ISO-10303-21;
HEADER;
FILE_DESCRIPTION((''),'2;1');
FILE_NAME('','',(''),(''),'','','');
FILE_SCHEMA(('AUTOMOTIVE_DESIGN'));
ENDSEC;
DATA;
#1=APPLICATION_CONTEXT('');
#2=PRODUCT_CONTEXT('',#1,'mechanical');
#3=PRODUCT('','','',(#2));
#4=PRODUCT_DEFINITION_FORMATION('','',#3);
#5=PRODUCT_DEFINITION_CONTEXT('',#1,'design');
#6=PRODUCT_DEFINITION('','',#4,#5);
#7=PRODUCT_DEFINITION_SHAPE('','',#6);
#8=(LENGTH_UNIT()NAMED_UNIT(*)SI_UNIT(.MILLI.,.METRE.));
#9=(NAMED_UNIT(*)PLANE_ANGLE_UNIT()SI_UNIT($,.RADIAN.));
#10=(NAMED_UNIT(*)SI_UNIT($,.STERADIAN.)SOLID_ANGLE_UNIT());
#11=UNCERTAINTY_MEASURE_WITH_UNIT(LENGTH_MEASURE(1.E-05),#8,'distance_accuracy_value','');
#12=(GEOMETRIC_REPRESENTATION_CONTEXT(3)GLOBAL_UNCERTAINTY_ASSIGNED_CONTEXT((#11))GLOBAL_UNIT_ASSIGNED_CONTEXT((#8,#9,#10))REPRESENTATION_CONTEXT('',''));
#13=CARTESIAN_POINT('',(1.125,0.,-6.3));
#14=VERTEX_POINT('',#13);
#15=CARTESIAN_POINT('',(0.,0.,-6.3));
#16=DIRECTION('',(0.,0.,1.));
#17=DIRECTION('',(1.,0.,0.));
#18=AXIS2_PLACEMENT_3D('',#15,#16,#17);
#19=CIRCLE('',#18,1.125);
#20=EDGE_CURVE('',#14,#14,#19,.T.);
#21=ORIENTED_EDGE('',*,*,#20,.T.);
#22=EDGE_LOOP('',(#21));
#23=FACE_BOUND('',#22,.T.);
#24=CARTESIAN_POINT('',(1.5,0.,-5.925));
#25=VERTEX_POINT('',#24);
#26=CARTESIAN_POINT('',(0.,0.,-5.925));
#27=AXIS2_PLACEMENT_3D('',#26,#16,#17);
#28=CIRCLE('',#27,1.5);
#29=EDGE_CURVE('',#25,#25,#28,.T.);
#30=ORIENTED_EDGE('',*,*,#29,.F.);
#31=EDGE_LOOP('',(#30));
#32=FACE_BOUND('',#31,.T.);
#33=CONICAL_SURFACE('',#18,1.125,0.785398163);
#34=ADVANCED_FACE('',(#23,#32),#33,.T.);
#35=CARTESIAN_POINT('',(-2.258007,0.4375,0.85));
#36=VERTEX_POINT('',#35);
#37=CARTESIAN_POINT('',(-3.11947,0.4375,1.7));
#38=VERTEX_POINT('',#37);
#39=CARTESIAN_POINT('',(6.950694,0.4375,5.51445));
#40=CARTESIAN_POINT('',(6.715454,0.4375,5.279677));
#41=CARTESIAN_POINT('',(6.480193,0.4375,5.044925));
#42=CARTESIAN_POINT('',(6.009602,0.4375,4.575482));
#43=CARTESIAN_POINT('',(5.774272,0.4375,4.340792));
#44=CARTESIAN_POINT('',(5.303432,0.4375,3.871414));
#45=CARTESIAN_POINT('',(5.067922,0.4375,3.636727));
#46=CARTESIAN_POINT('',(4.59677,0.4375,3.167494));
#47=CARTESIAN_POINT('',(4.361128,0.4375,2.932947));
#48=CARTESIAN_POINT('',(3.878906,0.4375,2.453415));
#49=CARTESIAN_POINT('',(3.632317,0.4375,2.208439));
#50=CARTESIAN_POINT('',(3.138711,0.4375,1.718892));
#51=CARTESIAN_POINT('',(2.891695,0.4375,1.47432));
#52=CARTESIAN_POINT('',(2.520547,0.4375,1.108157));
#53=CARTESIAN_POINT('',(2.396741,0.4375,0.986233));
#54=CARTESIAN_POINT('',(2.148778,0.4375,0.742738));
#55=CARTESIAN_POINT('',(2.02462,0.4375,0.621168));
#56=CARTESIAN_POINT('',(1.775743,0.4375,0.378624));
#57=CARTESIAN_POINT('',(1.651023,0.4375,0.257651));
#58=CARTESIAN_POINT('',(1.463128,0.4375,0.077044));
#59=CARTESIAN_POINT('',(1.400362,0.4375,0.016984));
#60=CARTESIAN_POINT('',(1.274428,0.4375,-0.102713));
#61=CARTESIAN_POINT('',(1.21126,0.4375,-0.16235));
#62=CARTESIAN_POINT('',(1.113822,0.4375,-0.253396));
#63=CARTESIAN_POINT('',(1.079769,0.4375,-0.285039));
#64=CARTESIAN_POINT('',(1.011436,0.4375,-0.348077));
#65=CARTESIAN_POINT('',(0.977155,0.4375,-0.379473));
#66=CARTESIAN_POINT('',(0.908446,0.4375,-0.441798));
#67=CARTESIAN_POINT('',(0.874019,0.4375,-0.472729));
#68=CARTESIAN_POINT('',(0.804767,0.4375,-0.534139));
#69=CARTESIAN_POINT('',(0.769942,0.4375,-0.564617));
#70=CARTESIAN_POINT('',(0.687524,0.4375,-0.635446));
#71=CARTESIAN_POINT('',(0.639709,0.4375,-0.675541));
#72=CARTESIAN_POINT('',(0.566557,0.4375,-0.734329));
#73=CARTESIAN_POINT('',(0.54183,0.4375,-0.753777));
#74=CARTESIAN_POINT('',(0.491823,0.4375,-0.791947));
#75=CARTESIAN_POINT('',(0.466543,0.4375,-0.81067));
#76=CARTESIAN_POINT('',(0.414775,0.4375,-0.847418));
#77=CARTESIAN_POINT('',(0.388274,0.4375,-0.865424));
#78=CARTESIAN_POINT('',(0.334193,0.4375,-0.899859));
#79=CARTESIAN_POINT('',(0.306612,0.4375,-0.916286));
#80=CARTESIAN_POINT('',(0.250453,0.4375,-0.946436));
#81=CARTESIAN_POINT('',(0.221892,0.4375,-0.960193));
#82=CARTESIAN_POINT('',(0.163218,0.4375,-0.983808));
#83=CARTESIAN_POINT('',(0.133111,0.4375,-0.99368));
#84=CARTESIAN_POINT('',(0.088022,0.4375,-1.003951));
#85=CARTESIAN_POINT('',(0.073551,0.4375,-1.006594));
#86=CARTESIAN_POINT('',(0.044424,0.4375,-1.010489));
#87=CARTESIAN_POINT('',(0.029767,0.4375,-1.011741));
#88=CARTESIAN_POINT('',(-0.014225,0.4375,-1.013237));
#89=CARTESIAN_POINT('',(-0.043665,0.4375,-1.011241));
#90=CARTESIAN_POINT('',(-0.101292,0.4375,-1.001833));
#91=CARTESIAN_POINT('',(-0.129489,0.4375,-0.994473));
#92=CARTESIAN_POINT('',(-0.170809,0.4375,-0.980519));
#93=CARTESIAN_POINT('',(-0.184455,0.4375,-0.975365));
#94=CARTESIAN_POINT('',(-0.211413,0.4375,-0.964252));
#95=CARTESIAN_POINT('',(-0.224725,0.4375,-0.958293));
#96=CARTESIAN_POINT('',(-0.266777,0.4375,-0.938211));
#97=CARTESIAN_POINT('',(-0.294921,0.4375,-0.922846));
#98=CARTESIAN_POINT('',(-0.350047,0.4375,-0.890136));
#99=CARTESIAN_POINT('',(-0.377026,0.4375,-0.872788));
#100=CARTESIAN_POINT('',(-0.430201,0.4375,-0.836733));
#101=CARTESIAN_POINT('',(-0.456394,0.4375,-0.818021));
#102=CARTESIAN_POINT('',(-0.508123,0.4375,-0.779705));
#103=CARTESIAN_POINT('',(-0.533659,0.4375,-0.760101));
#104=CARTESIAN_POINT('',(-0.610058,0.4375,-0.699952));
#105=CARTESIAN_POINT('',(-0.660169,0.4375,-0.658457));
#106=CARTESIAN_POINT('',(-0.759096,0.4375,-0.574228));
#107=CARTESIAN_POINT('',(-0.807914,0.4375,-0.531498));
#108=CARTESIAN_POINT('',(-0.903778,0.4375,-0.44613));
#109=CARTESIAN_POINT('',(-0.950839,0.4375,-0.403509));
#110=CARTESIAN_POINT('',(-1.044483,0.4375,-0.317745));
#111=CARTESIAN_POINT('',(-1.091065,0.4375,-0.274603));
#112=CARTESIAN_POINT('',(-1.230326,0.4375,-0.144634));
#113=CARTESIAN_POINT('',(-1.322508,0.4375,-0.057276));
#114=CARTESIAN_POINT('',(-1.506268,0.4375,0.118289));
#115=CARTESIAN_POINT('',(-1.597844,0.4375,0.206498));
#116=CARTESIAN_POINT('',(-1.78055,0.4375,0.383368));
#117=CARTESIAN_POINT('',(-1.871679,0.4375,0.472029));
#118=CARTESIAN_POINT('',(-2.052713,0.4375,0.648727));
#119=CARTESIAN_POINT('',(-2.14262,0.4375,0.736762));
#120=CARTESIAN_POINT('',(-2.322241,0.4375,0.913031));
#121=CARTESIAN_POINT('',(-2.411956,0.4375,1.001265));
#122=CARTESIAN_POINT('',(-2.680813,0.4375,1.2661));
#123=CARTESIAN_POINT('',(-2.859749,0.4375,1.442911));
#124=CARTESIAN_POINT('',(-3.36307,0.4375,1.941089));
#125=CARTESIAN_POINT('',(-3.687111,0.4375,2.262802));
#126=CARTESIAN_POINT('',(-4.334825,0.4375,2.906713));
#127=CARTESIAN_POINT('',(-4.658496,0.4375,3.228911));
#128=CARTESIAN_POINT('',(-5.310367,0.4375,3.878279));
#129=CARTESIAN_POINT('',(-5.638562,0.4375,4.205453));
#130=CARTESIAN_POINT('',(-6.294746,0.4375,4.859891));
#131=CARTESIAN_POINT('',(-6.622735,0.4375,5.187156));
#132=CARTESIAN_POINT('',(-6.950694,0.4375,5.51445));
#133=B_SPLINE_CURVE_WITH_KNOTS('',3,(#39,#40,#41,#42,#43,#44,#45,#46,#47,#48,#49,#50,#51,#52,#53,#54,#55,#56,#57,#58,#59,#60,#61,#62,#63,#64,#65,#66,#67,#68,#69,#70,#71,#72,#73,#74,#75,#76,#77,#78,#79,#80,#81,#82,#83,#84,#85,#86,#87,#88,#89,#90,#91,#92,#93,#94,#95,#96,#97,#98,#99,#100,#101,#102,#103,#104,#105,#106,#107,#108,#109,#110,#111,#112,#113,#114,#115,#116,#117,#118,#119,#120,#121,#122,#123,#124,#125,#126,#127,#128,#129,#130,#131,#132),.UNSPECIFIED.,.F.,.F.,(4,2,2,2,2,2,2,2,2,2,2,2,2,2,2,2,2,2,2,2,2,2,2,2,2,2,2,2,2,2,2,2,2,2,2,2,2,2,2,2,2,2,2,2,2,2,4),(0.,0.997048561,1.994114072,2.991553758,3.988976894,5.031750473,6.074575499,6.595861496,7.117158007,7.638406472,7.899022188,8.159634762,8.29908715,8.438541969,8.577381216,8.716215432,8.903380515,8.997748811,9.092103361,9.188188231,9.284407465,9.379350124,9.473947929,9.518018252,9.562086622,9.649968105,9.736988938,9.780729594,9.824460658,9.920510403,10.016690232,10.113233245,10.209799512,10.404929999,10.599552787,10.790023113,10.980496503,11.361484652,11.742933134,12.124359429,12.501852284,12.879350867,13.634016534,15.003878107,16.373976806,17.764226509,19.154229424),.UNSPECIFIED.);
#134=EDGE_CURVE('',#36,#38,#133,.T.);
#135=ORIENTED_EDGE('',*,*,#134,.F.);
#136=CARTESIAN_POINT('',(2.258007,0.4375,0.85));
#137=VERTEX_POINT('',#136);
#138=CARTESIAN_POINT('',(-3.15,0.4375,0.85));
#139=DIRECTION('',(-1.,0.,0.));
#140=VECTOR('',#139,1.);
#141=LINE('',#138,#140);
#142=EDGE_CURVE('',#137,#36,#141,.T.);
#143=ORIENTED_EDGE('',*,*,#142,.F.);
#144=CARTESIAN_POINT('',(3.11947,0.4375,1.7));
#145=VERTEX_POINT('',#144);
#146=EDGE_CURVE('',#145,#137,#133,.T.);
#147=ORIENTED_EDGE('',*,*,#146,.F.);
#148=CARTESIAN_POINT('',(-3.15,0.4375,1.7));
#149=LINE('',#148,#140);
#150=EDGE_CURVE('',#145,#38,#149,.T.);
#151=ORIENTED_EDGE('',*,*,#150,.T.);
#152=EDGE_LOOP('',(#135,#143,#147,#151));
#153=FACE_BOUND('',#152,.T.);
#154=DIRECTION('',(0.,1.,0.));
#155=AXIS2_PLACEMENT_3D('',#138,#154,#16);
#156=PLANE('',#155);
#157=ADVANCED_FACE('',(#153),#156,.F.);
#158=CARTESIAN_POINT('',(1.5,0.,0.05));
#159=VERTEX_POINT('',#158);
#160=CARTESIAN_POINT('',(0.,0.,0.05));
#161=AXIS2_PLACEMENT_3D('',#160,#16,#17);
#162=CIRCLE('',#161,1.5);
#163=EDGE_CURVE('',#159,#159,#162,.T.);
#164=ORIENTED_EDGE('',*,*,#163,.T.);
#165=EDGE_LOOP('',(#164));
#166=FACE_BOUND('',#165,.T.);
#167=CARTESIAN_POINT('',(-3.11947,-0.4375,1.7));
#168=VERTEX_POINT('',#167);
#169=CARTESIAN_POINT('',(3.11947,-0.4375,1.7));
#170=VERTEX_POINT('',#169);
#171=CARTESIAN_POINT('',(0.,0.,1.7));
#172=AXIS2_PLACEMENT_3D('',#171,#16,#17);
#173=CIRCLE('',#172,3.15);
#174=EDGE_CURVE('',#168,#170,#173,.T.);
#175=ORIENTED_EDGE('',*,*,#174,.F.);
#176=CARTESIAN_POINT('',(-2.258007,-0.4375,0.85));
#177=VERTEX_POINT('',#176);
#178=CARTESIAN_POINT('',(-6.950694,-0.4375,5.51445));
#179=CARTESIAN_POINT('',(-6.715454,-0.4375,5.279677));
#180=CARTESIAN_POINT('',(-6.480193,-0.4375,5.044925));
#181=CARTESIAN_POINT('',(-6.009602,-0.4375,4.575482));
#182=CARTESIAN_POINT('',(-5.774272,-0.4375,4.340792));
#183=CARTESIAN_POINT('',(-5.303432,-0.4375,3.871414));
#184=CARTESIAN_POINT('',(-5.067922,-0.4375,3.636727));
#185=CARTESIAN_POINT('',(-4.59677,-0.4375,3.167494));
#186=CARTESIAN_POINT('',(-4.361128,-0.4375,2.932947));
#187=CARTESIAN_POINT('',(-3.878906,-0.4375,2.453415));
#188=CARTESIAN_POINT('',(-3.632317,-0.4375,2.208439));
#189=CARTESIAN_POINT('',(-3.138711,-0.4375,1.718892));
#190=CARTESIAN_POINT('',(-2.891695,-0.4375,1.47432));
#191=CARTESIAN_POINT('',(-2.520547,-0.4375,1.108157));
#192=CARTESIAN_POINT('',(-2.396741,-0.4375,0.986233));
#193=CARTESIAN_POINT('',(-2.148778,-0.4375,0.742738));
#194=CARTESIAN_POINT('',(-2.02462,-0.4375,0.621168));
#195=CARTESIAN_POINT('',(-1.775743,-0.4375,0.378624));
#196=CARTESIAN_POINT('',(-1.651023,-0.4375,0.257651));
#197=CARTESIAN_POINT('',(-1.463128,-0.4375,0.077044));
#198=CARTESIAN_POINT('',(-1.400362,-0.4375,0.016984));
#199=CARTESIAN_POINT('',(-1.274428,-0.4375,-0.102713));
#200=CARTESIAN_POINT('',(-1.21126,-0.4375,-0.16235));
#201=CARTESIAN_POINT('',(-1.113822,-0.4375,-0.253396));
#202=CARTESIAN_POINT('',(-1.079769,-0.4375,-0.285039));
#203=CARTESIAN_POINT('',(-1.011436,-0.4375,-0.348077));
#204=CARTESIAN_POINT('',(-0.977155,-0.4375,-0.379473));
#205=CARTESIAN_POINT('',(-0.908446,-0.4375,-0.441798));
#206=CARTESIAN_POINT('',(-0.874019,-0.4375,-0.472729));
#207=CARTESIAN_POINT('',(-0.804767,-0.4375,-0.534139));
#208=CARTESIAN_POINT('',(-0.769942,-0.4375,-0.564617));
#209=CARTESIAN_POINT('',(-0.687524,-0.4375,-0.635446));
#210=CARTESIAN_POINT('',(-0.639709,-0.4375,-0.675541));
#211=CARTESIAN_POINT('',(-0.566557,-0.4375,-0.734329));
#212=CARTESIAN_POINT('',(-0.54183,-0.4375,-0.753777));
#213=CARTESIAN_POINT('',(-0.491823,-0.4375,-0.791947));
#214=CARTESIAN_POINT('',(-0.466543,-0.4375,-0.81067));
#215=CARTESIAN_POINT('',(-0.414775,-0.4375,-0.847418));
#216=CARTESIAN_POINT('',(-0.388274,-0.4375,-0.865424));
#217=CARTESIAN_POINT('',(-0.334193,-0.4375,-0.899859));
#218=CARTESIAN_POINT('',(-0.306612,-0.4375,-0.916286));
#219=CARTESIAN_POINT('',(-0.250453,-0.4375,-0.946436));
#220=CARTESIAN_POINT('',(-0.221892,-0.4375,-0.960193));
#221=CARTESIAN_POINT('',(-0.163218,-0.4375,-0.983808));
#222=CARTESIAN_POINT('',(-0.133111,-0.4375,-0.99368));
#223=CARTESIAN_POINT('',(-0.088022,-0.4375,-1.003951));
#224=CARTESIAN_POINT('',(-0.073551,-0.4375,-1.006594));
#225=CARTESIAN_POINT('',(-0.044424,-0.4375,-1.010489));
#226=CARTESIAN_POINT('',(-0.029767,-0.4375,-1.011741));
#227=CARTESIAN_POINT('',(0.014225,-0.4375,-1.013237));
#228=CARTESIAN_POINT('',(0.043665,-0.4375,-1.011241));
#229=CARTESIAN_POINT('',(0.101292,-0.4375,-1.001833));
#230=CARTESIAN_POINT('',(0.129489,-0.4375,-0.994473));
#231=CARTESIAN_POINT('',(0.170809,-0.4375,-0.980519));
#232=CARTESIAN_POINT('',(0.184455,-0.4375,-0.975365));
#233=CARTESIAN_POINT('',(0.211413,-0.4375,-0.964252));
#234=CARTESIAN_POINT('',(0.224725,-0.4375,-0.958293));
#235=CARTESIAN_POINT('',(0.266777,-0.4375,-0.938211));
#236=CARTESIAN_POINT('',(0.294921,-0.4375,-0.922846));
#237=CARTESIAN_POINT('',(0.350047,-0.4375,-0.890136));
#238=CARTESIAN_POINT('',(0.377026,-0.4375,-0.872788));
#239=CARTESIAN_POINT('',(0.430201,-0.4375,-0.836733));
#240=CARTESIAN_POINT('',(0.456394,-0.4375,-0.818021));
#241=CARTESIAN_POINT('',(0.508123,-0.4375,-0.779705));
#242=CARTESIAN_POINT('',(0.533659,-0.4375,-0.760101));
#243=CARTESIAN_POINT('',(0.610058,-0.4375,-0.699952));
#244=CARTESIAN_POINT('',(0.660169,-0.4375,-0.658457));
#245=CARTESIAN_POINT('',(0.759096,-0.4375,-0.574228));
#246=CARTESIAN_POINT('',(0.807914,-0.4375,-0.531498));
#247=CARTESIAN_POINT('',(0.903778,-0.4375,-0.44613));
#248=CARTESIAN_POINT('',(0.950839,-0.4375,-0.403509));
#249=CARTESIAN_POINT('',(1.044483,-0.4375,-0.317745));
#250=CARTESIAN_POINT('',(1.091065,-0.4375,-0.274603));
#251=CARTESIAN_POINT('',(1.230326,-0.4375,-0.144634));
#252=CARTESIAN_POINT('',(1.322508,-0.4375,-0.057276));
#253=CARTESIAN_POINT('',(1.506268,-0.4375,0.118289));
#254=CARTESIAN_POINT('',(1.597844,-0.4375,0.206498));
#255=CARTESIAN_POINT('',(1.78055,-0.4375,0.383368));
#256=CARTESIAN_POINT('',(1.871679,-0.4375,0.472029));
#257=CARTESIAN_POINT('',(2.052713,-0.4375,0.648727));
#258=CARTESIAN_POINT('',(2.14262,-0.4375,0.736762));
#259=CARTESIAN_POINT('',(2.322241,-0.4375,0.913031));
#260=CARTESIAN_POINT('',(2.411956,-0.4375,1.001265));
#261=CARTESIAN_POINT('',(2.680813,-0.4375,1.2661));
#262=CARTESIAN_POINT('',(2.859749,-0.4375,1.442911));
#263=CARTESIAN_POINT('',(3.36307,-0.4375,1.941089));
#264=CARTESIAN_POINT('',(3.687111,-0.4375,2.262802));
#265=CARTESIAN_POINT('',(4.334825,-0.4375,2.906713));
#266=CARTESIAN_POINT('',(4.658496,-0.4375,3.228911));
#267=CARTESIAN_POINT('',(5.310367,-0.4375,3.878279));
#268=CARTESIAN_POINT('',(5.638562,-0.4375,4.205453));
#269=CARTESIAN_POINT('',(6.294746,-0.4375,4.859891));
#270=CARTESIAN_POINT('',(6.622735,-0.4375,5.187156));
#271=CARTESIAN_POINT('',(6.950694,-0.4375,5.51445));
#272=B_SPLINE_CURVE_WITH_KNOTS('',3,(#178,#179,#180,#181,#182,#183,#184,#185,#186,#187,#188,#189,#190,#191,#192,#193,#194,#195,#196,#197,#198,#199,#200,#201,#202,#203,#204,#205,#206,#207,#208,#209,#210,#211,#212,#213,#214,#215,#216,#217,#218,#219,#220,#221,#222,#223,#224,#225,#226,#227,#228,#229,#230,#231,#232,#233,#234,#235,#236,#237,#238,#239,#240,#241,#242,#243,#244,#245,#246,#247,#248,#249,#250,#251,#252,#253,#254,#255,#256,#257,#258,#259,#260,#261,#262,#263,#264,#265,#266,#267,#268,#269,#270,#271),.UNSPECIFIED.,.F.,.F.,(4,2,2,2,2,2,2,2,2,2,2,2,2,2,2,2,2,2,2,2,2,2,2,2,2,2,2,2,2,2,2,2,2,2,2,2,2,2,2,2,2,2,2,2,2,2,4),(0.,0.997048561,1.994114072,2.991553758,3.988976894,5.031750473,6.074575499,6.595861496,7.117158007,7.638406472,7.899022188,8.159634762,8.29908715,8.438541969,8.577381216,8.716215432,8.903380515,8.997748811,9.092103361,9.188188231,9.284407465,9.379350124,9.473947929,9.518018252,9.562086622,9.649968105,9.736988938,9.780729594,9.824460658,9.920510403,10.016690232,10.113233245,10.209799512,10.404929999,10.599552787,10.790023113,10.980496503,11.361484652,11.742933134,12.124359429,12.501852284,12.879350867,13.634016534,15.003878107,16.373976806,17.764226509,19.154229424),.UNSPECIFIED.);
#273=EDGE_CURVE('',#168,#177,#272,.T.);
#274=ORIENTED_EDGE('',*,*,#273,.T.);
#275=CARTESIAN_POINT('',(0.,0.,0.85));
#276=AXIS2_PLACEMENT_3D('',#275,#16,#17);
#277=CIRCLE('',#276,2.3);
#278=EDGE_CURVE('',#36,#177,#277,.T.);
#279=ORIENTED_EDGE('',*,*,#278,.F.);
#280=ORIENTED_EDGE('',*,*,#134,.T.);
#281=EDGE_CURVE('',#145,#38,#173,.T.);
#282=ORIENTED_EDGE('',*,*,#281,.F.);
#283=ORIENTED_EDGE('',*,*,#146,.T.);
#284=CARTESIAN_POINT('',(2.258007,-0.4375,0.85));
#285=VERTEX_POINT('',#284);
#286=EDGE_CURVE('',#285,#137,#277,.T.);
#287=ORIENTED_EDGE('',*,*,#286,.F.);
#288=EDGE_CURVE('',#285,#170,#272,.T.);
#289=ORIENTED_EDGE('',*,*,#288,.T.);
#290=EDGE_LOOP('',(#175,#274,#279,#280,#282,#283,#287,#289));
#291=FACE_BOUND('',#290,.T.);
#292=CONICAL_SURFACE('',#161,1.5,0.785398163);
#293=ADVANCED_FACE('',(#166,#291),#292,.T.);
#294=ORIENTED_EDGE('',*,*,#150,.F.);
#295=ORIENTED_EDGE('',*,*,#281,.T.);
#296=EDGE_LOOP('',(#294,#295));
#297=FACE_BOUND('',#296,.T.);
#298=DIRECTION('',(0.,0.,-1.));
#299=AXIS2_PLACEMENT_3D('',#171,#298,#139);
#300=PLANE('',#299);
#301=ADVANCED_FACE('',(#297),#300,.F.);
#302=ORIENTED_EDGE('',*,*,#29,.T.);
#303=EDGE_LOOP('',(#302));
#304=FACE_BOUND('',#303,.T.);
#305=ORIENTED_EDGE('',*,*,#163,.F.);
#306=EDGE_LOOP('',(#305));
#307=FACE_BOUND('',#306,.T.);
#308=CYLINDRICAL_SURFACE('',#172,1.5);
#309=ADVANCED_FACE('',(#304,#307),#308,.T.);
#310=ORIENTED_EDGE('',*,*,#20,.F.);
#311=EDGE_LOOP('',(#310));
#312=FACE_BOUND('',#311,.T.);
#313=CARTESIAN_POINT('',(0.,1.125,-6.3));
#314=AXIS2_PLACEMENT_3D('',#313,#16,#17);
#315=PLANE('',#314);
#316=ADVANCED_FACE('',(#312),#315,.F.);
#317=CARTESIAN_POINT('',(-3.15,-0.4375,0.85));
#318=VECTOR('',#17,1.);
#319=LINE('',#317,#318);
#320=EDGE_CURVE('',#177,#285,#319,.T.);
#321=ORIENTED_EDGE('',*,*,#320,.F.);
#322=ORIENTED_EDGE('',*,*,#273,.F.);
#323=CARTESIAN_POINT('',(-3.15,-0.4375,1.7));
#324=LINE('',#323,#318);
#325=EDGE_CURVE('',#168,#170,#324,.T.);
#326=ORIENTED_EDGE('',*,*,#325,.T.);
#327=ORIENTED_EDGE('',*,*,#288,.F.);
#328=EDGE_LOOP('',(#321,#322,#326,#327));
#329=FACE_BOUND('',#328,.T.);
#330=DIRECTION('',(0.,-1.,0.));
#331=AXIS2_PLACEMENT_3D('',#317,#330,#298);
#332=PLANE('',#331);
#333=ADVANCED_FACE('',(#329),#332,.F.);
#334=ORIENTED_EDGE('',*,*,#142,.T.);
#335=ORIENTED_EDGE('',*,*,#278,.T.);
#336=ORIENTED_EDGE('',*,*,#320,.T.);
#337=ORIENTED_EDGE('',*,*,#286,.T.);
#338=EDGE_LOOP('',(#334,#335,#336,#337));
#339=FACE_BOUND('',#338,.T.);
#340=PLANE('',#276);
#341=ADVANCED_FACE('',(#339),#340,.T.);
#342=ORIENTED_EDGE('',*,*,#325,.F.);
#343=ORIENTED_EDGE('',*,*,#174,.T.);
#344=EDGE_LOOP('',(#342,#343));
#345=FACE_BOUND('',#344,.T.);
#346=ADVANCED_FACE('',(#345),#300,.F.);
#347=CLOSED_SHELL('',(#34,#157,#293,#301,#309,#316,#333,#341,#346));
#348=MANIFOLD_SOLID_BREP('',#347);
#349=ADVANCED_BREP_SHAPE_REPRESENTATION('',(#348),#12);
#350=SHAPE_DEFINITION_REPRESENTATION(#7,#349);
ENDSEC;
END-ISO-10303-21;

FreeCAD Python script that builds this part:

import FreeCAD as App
import Part
import Sketcher
Q = App.Units.Quantity


def add_polygon(sketch, points):
    """Adds a closed chain of lines whose ends are joined by coincident constraints."""
    first, n = sketch.GeometryCount, len(points)
    for a, b in zip(points, points[1:] + points[:1]):
        sketch.addGeometry(Part.LineSegment(App.Vector(*a, 0), App.Vector(*b, 0)), False)
    for i in range(n):
        sketch.addConstraint(Sketcher.Constraint("Coincident", first + i, 2, first + (i + 1) % n, 1))

doc = App.newDocument("Part")
params = doc.addObject("Spreadsheet::Sheet", "Params")
for row, (alias, value) in enumerate([
    ("sketch1_height", "8 mm"),
    ("sketch1_width", "3.15 mm"),
    ("revolution_angle", "360 deg"),
    ("sketch2_width", "6.3 mm"),
    ("pocket1_length", "0.85 mm"),
], start=1):
    params.set(f"A{row}", alias)
    params.set(f"B{row}", "=" + value)
    params.setAlias(f"B{row}", alias)

body = doc.addObject("PartDesign::Body", "Body")

# Sketch on YZ plane
sketch1 = body.newObject("Sketcher::SketchObject", "Sketch")
sketch1.AttachmentSupport = (doc.getObject("YZ_Plane"), [""])
sketch1.MapMode = "FlatFace"
add_polygon(sketch1, [(1.5, 0.1), (3.1, 1.7), (0, 1.7), (0, -6.3), (1.1, -6.3), (1.5, -5.9)])  # lines 0-5
sketch1.addConstraint([
    Sketcher.Constraint("Horizontal", 1),
    Sketcher.Constraint("Vertical", 2),
    Sketcher.Constraint("Horizontal", 3),
    Sketcher.Constraint("Vertical", 5),
    Sketcher.Constraint("PointOnObject", 1, 2, -2),
    Sketcher.Constraint("Parallel", 0, 4),
    Sketcher.Constraint("DistanceY", 2, 2, 2, 1, Q("8 mm")),
    Sketcher.Constraint("Angle", 0, Q("45 deg")),
    Sketcher.Constraint("DistanceX", 1, 2, 1, 1, Q("3.15 mm")),
    Sketcher.Constraint("DistanceY", -1, 1, 0, 2, Q("1.7 mm")),
    Sketcher.Constraint("DistanceX", -1, 1, 4, 2, Q("1.5 mm")),
    Sketcher.Constraint("DistanceX", 3, 1, 3, 2, Q("1.125 mm")),
])
sketch1.setExpression("Constraints[12]", "Params.sketch1_height")
sketch1.setExpression("Constraints[14]", "Params.sketch1_width")
revolution = body.newObject("PartDesign::Revolution", "Revolution")
revolution.Profile = sketch1
revolution.ReferenceAxis = (sketch1, ["V_Axis"])
revolution.setExpression("Angle", "Params.revolution_angle")

# Sketch on XY plane
sketch2 = body.newObject("Sketcher::SketchObject", "Sketch001")
sketch2.AttachmentSupport = (doc.getObject("XY_Plane"), [""])
sketch2.MapMode = "FlatFace"
sketch2.AttachmentOffset = App.Placement(App.Vector(0, 0, 1.7), App.Rotation())
add_polygon(sketch2, [(-3.1, 0.4), (-3.1, -0.4), (3.1, -0.4), (3.1, 0.4)])  # lines 0-3
sketch2.addConstraint([
    Sketcher.Constraint("Vertical", 0),
    Sketcher.Constraint("Horizontal", 1),
    Sketcher.Constraint("Vertical", 2),
    Sketcher.Constraint("Horizontal", 3),
    Sketcher.Constraint("Symmetric", 0, 2, 2, 2, -1, 1),
    Sketcher.Constraint("DistanceX", 1, 1, 1, 2, Q("6.3 mm")),
    Sketcher.Constraint("DistanceY", 0, 2, 0, 1, Q("0.875 mm")),
])
sketch2.setExpression("Constraints[9]", "Params.sketch2_width")
pocket1 = body.newObject("PartDesign::Pocket", "Pocket")
pocket1.Profile = sketch2
pocket1.setExpression("Length", "Params.pocket1_length")

doc.recompute()
